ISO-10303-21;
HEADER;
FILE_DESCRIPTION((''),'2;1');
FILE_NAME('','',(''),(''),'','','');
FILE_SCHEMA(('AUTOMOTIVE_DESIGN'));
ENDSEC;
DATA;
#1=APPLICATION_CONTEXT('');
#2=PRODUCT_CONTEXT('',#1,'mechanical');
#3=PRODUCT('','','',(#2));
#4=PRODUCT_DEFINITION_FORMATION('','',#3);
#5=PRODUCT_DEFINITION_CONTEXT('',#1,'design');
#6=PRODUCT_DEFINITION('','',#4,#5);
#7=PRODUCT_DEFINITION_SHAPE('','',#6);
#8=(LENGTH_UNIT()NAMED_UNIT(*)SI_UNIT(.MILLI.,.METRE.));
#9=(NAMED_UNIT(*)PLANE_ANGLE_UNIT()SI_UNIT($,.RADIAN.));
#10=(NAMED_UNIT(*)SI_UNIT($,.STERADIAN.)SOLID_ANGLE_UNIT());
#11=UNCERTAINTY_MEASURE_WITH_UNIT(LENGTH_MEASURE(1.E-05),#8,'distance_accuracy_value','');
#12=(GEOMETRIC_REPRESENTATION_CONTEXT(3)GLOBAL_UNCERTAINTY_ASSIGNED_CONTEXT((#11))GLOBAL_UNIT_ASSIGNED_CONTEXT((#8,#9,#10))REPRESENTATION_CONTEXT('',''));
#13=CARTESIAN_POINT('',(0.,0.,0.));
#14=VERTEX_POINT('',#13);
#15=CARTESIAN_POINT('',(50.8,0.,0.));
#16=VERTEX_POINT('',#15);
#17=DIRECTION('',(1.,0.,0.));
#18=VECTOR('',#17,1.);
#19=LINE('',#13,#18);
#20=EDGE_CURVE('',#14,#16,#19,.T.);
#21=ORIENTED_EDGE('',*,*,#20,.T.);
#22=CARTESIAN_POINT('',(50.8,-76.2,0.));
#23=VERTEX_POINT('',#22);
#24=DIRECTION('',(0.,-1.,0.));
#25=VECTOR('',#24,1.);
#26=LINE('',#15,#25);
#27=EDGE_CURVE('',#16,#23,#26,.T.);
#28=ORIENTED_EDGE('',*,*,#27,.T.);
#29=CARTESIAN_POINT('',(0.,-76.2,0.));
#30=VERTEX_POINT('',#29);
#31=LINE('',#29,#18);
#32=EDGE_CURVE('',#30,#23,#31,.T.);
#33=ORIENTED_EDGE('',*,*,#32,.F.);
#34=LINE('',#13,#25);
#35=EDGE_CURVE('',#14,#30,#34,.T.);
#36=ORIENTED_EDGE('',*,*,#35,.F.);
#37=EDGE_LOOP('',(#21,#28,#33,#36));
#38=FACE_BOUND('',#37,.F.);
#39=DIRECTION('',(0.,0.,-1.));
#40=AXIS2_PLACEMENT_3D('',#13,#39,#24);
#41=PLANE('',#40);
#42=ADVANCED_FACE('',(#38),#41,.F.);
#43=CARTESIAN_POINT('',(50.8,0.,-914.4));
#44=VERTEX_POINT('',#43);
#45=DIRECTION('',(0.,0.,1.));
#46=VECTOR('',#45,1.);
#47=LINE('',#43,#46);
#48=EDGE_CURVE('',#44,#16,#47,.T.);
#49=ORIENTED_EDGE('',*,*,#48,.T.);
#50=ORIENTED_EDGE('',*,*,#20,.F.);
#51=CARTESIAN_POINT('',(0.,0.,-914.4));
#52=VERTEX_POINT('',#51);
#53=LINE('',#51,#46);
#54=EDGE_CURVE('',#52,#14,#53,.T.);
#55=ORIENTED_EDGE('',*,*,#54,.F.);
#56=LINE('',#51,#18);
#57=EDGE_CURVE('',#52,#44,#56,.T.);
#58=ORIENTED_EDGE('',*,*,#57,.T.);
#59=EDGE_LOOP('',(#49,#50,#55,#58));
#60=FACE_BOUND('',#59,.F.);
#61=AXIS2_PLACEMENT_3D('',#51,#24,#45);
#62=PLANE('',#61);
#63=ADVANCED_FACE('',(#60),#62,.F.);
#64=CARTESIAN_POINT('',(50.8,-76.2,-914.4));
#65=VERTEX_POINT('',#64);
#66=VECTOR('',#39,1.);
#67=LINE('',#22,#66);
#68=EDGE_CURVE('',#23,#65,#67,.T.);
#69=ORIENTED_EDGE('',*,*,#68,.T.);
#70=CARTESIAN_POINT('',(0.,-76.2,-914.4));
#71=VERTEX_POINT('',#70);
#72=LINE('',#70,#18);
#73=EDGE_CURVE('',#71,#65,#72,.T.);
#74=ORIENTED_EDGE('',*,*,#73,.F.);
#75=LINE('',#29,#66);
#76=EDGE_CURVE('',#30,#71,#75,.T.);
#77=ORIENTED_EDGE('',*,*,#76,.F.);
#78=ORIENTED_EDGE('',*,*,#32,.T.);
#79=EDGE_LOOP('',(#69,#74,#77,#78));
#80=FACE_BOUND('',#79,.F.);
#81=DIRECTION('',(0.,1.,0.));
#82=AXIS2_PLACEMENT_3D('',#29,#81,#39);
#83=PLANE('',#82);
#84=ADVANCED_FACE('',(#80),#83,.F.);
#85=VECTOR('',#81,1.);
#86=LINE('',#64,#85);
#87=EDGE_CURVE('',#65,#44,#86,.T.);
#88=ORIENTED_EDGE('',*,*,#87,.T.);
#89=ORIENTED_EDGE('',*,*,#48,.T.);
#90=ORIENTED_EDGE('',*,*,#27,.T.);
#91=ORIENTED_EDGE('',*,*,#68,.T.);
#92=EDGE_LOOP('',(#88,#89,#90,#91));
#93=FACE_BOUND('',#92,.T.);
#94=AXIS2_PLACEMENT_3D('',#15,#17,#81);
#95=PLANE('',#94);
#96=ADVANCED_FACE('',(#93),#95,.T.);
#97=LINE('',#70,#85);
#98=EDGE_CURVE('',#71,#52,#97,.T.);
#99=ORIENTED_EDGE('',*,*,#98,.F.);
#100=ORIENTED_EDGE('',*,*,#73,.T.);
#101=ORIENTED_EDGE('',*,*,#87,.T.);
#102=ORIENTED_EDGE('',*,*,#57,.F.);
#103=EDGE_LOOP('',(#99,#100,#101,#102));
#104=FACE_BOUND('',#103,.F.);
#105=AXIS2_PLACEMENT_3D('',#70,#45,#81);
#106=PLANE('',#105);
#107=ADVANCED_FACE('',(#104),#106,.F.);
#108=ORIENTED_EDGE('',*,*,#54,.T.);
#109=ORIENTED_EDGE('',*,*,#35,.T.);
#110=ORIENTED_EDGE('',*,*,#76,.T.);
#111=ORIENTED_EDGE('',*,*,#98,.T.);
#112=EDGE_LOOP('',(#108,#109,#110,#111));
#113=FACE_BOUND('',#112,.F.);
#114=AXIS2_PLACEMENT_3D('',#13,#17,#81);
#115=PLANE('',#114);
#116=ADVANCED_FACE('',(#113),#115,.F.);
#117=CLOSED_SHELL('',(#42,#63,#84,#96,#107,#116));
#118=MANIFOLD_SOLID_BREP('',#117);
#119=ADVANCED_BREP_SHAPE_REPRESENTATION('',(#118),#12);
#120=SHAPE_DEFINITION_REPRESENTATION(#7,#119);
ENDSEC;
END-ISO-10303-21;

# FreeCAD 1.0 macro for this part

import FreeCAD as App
import Part
import Sketcher

V = App.Vector
Q = App.Units.Quantity


def add_polygon(sketch, points):
    """Adds a closed chain of lines whose ends are joined by coincident constraints."""
    first, n = sketch.GeometryCount, len(points)
    for a, b in zip(points, points[1:] + points[:1]):
        sketch.addGeometry(Part.LineSegment(App.Vector(*a, 0), App.Vector(*b, 0)), False)
    for i in range(n):
        sketch.addConstraint(Sketcher.Constraint("Coincident", first + i, 2, first + (i + 1) % n, 1))

doc = App.newDocument("Part")
body = doc.addObject("PartDesign::Body", "Body")

sketch1 = doc.addObject("Sketcher::SketchObject", "Sketch")
body.addObject(sketch1)
sketch1.AttachmentSupport = (doc.YZ_Plane, [""])
sketch1.MapMode = "FlatFace"
add_polygon(sketch1, [(0, -914.4), (0, 0), (-76.2, 0), (-76.2, -914.4)])
sketch1.addConstraint([
    Sketcher.Constraint("Vertical", 0),
    Sketcher.Constraint("Horizontal", 1),
    Sketcher.Constraint("Vertical", 2),
    Sketcher.Constraint("Horizontal", 3),
    Sketcher.Constraint("Coincident", 0, 2, -1, 1),
    Sketcher.Constraint("DistanceX", 1, 2, 1, 1, Q("3 in")),
    Sketcher.Constraint("DistanceY", 0, 1, 0, 2, Q("36 in")),
])
pad1 = doc.addObject("PartDesign::Pad", "Pad")
body.addObject(pad1)
pad1.Profile = sketch1
pad1.Length = Q("2 in")

doc.recompute()
